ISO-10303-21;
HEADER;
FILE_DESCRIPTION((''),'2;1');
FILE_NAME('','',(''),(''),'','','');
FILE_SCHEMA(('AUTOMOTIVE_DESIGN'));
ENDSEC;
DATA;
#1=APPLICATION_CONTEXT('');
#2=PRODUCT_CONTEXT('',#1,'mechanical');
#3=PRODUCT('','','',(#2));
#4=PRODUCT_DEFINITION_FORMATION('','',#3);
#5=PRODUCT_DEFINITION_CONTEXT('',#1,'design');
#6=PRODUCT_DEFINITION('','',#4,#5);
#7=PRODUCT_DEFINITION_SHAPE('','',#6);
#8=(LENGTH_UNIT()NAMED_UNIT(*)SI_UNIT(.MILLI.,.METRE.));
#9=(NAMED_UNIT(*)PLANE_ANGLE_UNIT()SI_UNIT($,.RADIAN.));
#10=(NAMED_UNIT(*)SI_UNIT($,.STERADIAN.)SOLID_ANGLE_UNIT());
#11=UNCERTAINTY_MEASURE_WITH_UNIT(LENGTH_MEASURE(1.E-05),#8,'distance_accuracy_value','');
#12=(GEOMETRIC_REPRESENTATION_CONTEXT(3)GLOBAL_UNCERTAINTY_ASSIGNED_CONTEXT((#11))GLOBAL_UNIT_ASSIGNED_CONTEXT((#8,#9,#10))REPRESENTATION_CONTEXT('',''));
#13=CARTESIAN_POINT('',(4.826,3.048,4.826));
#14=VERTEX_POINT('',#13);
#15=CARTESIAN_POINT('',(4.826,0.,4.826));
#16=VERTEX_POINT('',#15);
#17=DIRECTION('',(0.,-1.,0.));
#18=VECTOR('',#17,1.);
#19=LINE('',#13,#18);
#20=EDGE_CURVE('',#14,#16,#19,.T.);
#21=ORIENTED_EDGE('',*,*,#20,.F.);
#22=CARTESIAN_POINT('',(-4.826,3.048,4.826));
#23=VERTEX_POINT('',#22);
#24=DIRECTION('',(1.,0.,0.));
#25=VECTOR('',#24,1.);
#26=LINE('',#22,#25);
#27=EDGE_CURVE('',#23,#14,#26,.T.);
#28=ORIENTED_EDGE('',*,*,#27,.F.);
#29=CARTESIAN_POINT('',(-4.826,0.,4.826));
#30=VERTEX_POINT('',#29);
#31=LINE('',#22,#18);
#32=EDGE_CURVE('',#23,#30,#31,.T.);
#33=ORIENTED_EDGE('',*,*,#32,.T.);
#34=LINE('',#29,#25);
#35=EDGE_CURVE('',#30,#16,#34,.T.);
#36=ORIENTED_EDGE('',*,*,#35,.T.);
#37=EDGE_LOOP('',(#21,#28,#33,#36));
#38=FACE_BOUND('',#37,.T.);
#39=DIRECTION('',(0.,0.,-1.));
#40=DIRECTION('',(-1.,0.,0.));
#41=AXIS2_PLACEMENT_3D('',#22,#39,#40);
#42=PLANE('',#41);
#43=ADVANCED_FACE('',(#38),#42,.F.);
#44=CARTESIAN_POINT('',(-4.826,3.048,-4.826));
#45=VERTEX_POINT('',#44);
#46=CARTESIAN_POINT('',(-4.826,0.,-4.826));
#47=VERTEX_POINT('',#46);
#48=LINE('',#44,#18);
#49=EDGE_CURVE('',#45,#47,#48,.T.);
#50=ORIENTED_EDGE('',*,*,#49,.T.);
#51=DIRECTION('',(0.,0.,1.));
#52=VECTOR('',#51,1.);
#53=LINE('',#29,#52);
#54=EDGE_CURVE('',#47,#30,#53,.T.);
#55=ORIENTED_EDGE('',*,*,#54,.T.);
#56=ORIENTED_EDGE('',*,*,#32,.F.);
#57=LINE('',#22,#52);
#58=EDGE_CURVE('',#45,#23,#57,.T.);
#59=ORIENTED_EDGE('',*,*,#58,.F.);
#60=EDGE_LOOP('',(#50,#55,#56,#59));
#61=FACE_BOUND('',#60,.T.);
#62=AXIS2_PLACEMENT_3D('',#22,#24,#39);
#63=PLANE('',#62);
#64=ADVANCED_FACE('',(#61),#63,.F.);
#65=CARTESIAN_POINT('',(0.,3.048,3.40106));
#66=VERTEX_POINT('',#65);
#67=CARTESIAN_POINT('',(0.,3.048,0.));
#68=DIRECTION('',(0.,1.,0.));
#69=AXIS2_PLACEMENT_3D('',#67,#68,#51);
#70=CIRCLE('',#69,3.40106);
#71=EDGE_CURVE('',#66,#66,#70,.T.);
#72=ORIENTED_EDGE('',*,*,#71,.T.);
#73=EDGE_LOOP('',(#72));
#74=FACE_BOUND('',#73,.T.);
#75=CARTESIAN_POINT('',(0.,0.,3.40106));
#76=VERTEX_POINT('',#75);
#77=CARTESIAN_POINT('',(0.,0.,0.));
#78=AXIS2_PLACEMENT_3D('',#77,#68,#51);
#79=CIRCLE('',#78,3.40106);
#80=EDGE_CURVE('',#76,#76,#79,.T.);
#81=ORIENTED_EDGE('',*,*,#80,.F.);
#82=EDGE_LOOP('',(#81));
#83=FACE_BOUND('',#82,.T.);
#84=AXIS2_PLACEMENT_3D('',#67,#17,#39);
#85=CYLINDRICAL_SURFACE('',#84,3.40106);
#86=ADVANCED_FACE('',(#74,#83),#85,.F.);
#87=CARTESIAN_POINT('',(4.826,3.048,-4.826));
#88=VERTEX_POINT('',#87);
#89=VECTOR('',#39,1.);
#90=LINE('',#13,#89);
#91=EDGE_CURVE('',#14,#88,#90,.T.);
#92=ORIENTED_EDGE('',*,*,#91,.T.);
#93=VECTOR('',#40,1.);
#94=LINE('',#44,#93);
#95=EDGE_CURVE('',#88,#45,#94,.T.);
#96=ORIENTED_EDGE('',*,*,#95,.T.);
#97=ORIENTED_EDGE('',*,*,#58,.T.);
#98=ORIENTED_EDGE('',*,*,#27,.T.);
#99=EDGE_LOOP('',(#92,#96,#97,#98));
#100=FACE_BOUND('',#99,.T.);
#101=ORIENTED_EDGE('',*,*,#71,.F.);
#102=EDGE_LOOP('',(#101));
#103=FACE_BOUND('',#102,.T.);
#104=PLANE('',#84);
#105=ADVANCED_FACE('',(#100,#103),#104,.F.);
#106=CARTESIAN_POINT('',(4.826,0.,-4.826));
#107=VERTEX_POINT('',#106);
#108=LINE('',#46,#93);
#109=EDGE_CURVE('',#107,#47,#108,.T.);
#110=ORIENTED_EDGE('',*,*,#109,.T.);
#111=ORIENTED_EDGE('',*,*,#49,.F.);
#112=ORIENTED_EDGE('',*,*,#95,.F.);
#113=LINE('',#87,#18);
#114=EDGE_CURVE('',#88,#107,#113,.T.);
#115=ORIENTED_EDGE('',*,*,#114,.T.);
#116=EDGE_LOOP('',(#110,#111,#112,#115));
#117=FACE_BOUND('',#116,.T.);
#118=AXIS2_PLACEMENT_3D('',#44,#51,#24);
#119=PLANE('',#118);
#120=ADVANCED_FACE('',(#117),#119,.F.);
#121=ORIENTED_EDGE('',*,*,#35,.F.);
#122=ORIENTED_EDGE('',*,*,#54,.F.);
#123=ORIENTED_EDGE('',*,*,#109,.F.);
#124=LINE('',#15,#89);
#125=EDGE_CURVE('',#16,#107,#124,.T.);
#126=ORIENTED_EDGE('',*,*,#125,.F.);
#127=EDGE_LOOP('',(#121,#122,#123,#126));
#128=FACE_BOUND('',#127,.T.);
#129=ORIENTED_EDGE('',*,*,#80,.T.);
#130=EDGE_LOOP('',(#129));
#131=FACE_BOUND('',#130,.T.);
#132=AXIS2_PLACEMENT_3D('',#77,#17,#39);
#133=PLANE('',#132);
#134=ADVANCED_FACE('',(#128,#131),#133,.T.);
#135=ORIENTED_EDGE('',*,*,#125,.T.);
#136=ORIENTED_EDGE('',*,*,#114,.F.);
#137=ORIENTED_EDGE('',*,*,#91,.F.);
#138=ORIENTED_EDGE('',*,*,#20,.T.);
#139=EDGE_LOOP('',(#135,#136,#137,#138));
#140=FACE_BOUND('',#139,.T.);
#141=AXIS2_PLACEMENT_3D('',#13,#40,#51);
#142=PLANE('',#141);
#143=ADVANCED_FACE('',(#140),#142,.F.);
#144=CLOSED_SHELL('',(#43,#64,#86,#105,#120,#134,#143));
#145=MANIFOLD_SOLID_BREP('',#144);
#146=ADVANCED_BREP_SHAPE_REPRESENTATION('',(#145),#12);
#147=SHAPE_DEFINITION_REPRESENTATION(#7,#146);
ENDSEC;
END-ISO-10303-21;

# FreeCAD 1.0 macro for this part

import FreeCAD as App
import Part
import Sketcher

V = App.Vector
Q = App.Units.Quantity

doc = App.newDocument("Part")
params = doc.addObject("Spreadsheet::Sheet", "Params")
for row, (alias, value) in enumerate([
    ("sketch1_width", "0.38 in"),
    ("pad1_length", "0.12 in"),
], start=1):
    params.set(f"A{row}", alias)
    params.set(f"B{row}", "=" + value)
    params.setAlias(f"B{row}", alias)

body = doc.addObject("PartDesign::Body", "Body")

# Sketch on XZ plane
sketch1 = doc.addObject("Sketcher::SketchObject", "Sketch")
body.addObject(sketch1)
sketch1.AttachmentSupport = (doc.XZ_Plane, [""])
sketch1.MapMode = "FlatFace"
sketch1.addGeometry(Part.LineSegment(V(-4.8, -4.8, 0), V(-4.8, 4.8, 0)), False)
sketch1.addGeometry(Part.LineSegment(V(-4.8, 4.8, 0), V(4.8, 4.8, 0)), False)
sketch1.addGeometry(Part.LineSegment(V(4.8, 4.8, 0), V(4.8, -4.8, 0)), False)
sketch1.addGeometry(Part.LineSegment(V(4.8, -4.8, 0), V(-4.8, -4.8, 0)), False)
sketch1.addGeometry(Part.Circle(V(0, 0, 0), V(0, 0, 1), 3.4), False)
sketch1.addConstraint(Sketcher.Constraint("Coincident", 0, 2, 1, 1))
sketch1.addConstraint(Sketcher.Constraint("Coincident", 1, 2, 2, 1))
sketch1.addConstraint(Sketcher.Constraint("Coincident", 2, 2, 3, 1))
sketch1.addConstraint(Sketcher.Constraint("Coincident", 3, 2, 0, 1))
sketch1.addConstraint(Sketcher.Constraint("Vertical", 0))
sketch1.addConstraint(Sketcher.Constraint("Horizontal", 1))
sketch1.addConstraint(Sketcher.Constraint("Vertical", 2))
sketch1.addConstraint(Sketcher.Constraint("Horizontal", 3))
sketch1.addConstraint(Sketcher.Constraint("Coincident", 4, 3, -1, 1))
sketch1.addConstraint(Sketcher.Constraint("Symmetric", 0, 2, 2, 2, -1, 1))
sketch1.addConstraint(Sketcher.Constraint("Equal", 3, 0))
sketch1.addConstraint(Sketcher.Constraint("Diameter", 4, Q("0.2678 in")))
sketch1.addConstraint(Sketcher.Constraint("DistanceX", 1, 1, 1, 2, Q("0.38 in")))
sketch1.setExpression("Constraints[12]", "Params.sketch1_width")
pad1 = doc.addObject("PartDesign::Pad", "Pad")
body.addObject(pad1)
pad1.Profile = sketch1
pad1.setExpression("Length", "Params.pad1_length")
pad1.Reversed = True

doc.recompute()
